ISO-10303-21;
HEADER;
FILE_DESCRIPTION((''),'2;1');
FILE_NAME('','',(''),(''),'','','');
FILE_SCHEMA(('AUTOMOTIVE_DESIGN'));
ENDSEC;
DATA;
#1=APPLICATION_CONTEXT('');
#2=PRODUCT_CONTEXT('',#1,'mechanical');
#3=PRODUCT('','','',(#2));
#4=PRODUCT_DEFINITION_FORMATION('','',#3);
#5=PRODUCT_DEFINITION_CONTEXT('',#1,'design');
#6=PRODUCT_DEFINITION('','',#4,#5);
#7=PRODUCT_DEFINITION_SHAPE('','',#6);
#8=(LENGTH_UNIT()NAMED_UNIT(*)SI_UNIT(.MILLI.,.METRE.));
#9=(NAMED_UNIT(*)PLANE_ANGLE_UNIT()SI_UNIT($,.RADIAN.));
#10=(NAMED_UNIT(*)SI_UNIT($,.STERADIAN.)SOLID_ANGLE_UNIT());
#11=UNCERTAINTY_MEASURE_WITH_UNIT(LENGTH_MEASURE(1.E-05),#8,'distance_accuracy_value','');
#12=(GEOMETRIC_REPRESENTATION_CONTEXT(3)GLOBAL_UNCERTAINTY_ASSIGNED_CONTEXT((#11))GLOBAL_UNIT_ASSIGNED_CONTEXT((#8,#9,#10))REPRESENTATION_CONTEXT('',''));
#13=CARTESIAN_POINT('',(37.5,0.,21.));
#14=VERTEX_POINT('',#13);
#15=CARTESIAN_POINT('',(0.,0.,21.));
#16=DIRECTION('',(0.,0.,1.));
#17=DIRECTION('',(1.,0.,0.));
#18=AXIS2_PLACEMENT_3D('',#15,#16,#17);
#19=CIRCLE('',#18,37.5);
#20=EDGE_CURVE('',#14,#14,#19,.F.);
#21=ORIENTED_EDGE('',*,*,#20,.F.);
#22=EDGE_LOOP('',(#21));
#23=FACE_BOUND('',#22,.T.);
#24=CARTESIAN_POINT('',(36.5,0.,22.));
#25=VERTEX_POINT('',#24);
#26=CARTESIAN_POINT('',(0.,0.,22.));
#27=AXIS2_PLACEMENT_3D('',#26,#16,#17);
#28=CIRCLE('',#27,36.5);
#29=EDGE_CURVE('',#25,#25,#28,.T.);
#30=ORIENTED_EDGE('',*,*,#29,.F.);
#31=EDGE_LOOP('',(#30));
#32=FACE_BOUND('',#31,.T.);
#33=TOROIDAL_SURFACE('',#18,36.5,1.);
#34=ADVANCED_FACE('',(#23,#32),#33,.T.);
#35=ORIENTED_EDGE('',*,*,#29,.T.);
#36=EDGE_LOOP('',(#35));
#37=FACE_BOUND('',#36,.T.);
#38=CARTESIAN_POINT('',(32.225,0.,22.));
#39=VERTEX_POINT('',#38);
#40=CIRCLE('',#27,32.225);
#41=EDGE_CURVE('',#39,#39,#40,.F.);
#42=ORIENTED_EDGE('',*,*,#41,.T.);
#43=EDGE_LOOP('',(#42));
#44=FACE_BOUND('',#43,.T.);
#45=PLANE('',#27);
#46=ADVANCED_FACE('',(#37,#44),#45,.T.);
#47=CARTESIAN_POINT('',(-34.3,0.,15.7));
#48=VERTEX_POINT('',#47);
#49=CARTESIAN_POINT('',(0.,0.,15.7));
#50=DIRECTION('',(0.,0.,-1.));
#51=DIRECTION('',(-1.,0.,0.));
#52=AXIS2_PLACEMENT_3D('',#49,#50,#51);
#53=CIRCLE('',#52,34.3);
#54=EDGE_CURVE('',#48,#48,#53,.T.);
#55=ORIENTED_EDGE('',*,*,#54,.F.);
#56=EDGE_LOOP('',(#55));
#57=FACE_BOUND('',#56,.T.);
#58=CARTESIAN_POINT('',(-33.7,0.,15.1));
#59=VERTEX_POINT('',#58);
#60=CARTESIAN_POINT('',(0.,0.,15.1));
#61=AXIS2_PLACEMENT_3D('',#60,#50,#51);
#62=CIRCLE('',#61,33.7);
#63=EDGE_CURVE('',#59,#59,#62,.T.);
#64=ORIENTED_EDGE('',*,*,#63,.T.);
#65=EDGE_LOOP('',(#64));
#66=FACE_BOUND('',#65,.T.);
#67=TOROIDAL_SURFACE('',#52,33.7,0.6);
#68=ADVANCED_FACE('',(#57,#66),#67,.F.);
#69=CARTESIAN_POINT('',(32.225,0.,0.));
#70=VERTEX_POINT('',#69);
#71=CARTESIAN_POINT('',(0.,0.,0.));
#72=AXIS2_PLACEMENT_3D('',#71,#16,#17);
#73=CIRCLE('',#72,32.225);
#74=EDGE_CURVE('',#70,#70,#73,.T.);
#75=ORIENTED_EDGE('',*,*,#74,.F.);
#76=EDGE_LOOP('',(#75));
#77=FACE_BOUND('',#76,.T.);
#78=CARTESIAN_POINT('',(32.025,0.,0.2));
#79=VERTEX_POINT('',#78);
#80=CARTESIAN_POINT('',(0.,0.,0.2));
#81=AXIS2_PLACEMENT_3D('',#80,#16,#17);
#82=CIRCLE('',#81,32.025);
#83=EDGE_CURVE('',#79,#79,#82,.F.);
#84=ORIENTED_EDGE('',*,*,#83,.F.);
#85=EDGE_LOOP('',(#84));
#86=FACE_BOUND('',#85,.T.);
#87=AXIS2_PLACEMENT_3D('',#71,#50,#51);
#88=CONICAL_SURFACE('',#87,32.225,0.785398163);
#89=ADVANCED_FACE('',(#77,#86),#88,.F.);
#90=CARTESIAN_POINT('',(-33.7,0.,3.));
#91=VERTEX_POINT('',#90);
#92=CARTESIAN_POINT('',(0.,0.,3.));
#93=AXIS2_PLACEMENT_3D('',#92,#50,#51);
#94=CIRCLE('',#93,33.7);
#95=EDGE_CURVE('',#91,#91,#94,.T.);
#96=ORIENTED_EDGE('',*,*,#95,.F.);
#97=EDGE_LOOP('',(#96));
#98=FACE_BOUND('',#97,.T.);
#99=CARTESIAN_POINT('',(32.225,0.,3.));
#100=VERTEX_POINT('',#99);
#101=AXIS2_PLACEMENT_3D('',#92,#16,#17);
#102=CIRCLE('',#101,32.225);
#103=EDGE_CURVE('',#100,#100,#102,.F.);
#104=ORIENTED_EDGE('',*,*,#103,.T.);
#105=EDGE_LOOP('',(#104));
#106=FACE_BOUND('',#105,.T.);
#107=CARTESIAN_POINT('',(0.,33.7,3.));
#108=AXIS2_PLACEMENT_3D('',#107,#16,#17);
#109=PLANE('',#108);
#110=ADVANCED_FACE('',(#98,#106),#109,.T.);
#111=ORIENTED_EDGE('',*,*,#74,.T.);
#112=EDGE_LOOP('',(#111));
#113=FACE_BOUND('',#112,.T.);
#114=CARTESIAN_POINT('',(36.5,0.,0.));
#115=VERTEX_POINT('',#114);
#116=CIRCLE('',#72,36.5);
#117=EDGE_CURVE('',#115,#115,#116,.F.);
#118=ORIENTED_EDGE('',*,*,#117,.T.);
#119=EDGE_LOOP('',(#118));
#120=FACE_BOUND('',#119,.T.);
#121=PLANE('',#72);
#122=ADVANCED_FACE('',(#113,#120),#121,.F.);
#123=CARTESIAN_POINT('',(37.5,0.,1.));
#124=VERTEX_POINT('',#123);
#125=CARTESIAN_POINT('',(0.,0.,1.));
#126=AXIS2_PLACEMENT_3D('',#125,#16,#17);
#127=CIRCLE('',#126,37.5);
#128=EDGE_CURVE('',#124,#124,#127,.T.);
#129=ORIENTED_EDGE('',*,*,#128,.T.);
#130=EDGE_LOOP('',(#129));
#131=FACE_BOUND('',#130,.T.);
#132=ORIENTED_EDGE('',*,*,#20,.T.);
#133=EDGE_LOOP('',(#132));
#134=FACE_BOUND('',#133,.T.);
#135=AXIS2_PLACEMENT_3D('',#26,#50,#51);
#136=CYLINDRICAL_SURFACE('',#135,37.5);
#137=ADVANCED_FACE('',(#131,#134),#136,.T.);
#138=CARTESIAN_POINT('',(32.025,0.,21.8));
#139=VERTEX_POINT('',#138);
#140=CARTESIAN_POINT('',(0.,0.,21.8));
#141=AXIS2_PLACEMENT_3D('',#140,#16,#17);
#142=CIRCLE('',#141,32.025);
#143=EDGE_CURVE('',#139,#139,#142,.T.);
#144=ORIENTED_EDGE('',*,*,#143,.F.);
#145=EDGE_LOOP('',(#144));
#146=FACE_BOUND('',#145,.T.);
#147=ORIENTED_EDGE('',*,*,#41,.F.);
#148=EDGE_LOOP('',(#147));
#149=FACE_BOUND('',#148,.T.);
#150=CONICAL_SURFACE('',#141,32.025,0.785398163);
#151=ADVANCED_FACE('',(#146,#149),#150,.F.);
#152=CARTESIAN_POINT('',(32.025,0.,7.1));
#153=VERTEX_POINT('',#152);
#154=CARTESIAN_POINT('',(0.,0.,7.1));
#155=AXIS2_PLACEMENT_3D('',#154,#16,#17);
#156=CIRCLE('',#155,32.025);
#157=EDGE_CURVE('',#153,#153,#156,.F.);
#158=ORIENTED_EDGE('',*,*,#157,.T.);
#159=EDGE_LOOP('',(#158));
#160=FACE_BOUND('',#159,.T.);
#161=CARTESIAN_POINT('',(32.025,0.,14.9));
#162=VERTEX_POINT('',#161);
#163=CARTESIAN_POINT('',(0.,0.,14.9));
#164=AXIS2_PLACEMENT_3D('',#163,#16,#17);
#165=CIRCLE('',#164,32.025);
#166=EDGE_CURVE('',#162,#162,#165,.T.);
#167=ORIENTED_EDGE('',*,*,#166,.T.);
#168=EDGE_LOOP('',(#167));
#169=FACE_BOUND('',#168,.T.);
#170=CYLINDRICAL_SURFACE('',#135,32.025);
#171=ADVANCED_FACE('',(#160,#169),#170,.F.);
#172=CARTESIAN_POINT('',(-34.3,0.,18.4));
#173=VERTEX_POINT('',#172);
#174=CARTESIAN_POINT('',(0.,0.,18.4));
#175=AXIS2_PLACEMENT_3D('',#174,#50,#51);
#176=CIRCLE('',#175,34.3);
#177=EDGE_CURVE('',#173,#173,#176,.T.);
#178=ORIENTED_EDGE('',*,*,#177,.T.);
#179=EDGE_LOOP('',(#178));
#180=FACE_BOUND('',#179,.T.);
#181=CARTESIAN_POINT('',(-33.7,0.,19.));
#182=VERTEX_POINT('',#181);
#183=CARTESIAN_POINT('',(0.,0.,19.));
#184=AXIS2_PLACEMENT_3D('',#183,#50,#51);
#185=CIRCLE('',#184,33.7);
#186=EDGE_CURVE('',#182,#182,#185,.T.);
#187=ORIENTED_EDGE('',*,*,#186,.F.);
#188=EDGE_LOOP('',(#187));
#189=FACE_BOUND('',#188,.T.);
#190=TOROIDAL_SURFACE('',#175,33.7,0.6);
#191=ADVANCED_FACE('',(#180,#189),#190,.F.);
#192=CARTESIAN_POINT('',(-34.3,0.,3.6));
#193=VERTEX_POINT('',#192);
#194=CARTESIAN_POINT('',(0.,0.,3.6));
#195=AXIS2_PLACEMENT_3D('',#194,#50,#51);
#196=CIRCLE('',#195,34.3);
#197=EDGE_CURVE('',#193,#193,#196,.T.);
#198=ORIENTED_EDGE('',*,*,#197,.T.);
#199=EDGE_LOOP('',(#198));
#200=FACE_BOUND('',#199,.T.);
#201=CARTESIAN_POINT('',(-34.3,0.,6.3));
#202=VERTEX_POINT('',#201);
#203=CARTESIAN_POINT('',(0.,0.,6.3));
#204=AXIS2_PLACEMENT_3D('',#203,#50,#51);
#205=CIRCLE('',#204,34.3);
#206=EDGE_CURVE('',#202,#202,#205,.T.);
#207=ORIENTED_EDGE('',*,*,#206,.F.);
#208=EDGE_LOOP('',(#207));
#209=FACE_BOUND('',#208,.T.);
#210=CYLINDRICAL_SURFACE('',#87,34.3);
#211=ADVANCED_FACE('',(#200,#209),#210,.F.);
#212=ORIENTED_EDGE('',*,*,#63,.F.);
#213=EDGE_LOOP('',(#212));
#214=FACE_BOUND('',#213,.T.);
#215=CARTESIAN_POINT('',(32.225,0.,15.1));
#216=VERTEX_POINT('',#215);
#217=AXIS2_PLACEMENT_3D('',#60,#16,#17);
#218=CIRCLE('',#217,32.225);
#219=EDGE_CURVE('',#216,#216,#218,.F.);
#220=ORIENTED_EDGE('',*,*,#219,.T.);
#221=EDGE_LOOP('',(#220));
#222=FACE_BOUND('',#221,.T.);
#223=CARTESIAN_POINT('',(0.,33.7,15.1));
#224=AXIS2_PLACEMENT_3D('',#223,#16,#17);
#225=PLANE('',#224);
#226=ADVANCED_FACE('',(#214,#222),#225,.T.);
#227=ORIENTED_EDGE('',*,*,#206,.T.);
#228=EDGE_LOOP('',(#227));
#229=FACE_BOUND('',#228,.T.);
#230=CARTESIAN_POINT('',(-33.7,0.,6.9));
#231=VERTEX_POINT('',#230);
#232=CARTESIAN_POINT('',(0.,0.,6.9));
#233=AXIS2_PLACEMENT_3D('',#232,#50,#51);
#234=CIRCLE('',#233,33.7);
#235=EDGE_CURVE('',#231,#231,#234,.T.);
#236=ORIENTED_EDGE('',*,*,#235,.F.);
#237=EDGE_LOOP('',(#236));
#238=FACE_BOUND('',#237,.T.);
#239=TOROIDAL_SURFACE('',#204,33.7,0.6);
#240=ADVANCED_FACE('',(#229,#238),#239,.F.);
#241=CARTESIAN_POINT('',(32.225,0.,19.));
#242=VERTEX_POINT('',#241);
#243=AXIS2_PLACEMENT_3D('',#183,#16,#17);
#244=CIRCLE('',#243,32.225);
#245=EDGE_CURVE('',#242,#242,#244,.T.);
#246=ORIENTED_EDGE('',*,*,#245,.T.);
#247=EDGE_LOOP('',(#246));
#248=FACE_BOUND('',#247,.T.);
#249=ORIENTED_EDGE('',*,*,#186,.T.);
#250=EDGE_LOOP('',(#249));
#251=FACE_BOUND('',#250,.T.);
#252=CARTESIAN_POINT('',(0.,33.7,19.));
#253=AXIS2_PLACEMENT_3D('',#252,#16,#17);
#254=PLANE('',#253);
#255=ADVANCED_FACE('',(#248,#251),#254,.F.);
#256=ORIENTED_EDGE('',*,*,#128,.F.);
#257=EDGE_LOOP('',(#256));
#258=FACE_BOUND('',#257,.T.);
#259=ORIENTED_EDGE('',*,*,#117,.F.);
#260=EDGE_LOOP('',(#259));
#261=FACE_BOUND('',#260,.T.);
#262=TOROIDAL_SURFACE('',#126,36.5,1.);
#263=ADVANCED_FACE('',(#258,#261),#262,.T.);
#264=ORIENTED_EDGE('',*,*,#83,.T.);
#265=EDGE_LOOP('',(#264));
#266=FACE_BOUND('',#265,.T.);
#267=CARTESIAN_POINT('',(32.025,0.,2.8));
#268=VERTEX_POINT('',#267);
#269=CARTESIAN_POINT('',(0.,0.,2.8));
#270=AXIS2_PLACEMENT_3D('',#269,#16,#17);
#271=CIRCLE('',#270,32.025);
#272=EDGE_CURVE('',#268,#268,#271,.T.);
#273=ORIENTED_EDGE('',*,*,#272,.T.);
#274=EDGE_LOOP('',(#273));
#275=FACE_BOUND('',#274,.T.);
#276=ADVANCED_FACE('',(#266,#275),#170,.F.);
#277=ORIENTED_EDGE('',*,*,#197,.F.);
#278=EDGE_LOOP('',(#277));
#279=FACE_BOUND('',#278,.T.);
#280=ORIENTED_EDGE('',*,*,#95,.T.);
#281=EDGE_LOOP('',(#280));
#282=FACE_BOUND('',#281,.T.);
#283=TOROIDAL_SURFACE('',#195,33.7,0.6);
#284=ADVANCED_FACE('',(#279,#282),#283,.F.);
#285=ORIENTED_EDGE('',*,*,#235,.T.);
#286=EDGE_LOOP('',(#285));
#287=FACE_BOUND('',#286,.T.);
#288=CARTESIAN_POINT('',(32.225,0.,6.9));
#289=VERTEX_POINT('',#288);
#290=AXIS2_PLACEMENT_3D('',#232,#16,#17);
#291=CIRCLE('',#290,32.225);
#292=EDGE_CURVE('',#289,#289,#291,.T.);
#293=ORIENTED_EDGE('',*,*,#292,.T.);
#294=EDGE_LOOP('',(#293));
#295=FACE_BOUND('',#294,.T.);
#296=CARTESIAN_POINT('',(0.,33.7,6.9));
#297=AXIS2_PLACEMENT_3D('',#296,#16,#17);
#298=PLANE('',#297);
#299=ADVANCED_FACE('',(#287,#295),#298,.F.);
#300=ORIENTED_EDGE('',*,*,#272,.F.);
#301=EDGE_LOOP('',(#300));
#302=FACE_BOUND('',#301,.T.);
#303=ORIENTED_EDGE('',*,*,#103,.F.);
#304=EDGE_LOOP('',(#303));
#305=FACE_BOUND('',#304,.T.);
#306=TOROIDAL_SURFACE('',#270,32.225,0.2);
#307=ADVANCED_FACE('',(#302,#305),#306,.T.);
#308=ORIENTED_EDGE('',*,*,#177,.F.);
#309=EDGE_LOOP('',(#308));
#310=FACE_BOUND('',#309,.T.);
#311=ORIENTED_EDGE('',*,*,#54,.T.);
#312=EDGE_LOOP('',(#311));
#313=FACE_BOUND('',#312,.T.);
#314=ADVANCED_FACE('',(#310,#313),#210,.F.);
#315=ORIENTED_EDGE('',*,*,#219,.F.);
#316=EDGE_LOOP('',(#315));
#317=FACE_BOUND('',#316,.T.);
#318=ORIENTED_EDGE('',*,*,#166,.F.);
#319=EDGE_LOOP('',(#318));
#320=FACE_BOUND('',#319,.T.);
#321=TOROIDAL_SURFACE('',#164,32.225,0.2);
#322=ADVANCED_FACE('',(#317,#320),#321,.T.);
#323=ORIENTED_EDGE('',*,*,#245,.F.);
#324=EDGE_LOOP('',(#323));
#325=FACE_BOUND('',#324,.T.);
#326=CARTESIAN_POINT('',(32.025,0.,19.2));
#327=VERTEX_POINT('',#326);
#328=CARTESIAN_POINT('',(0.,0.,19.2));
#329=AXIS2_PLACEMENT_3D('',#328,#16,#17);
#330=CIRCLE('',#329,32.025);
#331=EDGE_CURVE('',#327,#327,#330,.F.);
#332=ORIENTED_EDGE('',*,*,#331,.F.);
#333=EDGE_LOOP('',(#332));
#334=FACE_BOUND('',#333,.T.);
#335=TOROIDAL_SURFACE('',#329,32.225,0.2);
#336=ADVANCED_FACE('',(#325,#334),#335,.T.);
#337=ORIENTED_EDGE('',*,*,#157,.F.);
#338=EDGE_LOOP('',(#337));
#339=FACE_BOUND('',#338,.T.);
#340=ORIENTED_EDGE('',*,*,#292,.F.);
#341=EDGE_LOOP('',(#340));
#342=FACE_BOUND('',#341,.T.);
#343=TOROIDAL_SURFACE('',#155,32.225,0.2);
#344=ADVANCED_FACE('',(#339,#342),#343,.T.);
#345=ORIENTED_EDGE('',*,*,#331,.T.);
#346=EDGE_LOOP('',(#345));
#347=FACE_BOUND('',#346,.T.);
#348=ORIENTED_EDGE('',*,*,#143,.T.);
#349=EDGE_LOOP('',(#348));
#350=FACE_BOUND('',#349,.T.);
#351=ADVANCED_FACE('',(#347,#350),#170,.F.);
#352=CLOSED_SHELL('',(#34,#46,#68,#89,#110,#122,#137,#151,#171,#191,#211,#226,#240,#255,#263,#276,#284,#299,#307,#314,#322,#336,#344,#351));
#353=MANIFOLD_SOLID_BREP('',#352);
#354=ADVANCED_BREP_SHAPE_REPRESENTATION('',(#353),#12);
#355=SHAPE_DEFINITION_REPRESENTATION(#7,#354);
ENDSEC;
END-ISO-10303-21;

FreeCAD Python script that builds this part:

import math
import FreeCAD as App
import Part
import Sketcher

V = App.Vector


def edges_at(feature, points):
    """Names of the edges that pass closest to the given points."""
    edges = feature.Shape.Edges
    near = lambda p: min(range(len(edges)), key=lambda i: edges[i].distToShape(Part.Vertex(*p))[0])
    return sorted({f"Edge{near(p) + 1}" for p in points})

doc = App.newDocument("Part")
body = doc.addObject("PartDesign::Body", "Body")

# Sketch on XY plane
sketch1 = body.newObject("Sketcher::SketchObject", "Sketch")
sketch1.AttachmentSupport = (doc.getObject("XY_Plane"), [""])
sketch1.MapMode = "FlatFace"
sketch1.addGeometry(Part.Circle(V(0, 0, 0), V(0, 0, 1), 37.5), False)
sketch1.addGeometry(Part.Circle(V(0, 0, 0), V(0, 0, 1), 32.025), False)
sketch1.addConstraint(Sketcher.Constraint("Coincident", 0, 3, -1, 1))
sketch1.addConstraint(Sketcher.Constraint("Coincident", 1, 3, -1, 1))
sketch1.addConstraint(Sketcher.Constraint("Diameter", 0, 75.0))
sketch1.addConstraint(Sketcher.Constraint("Diameter", 1, 64.05))
pad1 = body.newObject("PartDesign::Pad", "Pad")
pad1.Profile = sketch1
pad1.Length = 22
doc.recompute()

fillet = body.newObject("PartDesign::Fillet", "Fillet")
fillet.Base = (pad1, edges_at(pad1, [(-37.5, 0, 0), (-37.5, 0, 22)]))
fillet.Radius = 1

# Sketch on YZ plane
sketch2 = body.newObject("Sketcher::SketchObject", "Sketch001")
sketch2.AttachmentSupport = (doc.getObject("YZ_Plane"), [""])
sketch2.MapMode = "FlatFace"
sketch2.addGeometry(Part.LineSegment(V(34.3, 3.6, 0), V(34.3, 6.3, 0)), False)
sketch2.addGeometry(Part.ArcOfCircle(Part.Circle(V(33.7, 6.3, 0), V(0, 0, 1), 0.6), math.radians(0), math.radians(90)), False)
sketch2.addGeometry(Part.LineSegment(V(33.7, 6.9, 0), V(0, 6.9, 0)), False)
sketch2.addGeometry(Part.LineSegment(V(0, 6.9, 0), V(0, 3, 0)), False)
sketch2.addGeometry(Part.LineSegment(V(0, 3, 0), V(33.7, 3, 0)), False)
sketch2.addGeometry(Part.ArcOfCircle(Part.Circle(V(33.7, 3.6, 0), V(0, 0, 1), 0.6), math.radians(-90), math.radians(0)), False)
sketch2.addGeometry(Part.LineSegment(V(34.3, 15.7, 0), V(34.3, 18.4, 0)), False)
sketch2.addGeometry(Part.ArcOfCircle(Part.Circle(V(33.7, 18.4, 0), V(0, 0, 1), 0.6), math.radians(0), math.radians(90)), False)
sketch2.addGeometry(Part.LineSegment(V(33.7, 19, 0), V(0, 19, 0)), False)
sketch2.addGeometry(Part.LineSegment(V(0, 19, 0), V(0, 15.1, 0)), False)
sketch2.addGeometry(Part.LineSegment(V(0, 15.1, 0), V(33.7, 15.1, 0)), False)
sketch2.addGeometry(Part.ArcOfCircle(Part.Circle(V(33.7, 15.7, 0), V(0, 0, 1), 0.6), math.radians(-90), math.radians(0)), False)
sketch2.addConstraint(Sketcher.Constraint("Tangent", 0, 2, 1, 1))
sketch2.addConstraint(Sketcher.Constraint("Tangent", 1, 2, 2, 1))
sketch2.addConstraint(Sketcher.Constraint("Coincident", 2, 2, 3, 1))
sketch2.addConstraint(Sketcher.Constraint("Coincident", 3, 2, 4, 1))
sketch2.addConstraint(Sketcher.Constraint("Tangent", 4, 2, 5, 1))
sketch2.addConstraint(Sketcher.Constraint("Tangent", 5, 2, 0, 1))
sketch2.addConstraint(Sketcher.Constraint("Tangent", 6, 2, 7, 1))
sketch2.addConstraint(Sketcher.Constraint("Tangent", 7, 2, 8, 1))
sketch2.addConstraint(Sketcher.Constraint("Coincident", 8, 2, 9, 1))
sketch2.addConstraint(Sketcher.Constraint("Coincident", 9, 2, 10, 1))
sketch2.addConstraint(Sketcher.Constraint("Tangent", 10, 2, 11, 1))
sketch2.addConstraint(Sketcher.Constraint("Tangent", 11, 2, 6, 1))
sketch2.addConstraint(Sketcher.Constraint("Vertical", 0))
sketch2.addConstraint(Sketcher.Constraint("Horizontal", 2))
sketch2.addConstraint(Sketcher.Constraint("Vertical", 3))
sketch2.addConstraint(Sketcher.Constraint("Horizontal", 4))
sketch2.addConstraint(Sketcher.Constraint("Vertical", 6))
sketch2.addConstraint(Sketcher.Constraint("Horizontal", 8))
sketch2.addConstraint(Sketcher.Constraint("Vertical", 9))
sketch2.addConstraint(Sketcher.Constraint("Horizontal", 10))
sketch2.addConstraint(Sketcher.Constraint("Equal", 1, 5))
sketch2.addConstraint(Sketcher.Constraint("Equal", 5, 7))
sketch2.addConstraint(Sketcher.Constraint("Equal", 7, 11))
sketch2.addConstraint(Sketcher.Constraint("PointOnObject", 2, 2, -2))
sketch2.addConstraint(Sketcher.Constraint("PointOnObject", 8, 2, -2))
sketch2.addConstraint(Sketcher.Constraint("Vertical", 5, 3, 7, 3))
sketch2.addConstraint(Sketcher.Constraint("Equal", 0, 6))
sketch2.addConstraint(Sketcher.Constraint("Radius", 1, 0.6))
sketch2.addConstraint(Sketcher.Constraint("DistanceX", 2, 2, 2, 1, 33.7))
sketch2.addConstraint(Sketcher.Constraint("DistanceY", 0, 1, 0, 2, 2.7))
sketch2.addConstraint(Sketcher.Constraint("DistanceY", -1, 1, 3, 2, 3.0))
sketch2.addConstraint(Sketcher.Constraint("DistanceY", -1, 1, 7, 2, 19.0))
groove = body.newObject("PartDesign::Groove", "Groove")
groove.Profile = sketch2
groove.ReferenceAxis = (sketch2, ["V_Axis"])
groove.Angle = 360
doc.recompute()

fillet2 = body.newObject("PartDesign::Fillet", "Fillet001")
fillet2.Base = (groove, edges_at(groove, [
    (-32.025, 0, 19),
    (-32.025, 0, 15.1),
    (-32.025, 0, 6.9),
    (-32.025, 0, 3),
]))
fillet2.Radius = 0.2
doc.recompute()

chamfer = body.newObject("PartDesign::Chamfer", "Chamfer")
chamfer.Base = (fillet2, edges_at(fillet2, [(-32.025, 0, 0), (-32.025, 0, 22)]))
chamfer.Size = 0.2

doc.recompute()
